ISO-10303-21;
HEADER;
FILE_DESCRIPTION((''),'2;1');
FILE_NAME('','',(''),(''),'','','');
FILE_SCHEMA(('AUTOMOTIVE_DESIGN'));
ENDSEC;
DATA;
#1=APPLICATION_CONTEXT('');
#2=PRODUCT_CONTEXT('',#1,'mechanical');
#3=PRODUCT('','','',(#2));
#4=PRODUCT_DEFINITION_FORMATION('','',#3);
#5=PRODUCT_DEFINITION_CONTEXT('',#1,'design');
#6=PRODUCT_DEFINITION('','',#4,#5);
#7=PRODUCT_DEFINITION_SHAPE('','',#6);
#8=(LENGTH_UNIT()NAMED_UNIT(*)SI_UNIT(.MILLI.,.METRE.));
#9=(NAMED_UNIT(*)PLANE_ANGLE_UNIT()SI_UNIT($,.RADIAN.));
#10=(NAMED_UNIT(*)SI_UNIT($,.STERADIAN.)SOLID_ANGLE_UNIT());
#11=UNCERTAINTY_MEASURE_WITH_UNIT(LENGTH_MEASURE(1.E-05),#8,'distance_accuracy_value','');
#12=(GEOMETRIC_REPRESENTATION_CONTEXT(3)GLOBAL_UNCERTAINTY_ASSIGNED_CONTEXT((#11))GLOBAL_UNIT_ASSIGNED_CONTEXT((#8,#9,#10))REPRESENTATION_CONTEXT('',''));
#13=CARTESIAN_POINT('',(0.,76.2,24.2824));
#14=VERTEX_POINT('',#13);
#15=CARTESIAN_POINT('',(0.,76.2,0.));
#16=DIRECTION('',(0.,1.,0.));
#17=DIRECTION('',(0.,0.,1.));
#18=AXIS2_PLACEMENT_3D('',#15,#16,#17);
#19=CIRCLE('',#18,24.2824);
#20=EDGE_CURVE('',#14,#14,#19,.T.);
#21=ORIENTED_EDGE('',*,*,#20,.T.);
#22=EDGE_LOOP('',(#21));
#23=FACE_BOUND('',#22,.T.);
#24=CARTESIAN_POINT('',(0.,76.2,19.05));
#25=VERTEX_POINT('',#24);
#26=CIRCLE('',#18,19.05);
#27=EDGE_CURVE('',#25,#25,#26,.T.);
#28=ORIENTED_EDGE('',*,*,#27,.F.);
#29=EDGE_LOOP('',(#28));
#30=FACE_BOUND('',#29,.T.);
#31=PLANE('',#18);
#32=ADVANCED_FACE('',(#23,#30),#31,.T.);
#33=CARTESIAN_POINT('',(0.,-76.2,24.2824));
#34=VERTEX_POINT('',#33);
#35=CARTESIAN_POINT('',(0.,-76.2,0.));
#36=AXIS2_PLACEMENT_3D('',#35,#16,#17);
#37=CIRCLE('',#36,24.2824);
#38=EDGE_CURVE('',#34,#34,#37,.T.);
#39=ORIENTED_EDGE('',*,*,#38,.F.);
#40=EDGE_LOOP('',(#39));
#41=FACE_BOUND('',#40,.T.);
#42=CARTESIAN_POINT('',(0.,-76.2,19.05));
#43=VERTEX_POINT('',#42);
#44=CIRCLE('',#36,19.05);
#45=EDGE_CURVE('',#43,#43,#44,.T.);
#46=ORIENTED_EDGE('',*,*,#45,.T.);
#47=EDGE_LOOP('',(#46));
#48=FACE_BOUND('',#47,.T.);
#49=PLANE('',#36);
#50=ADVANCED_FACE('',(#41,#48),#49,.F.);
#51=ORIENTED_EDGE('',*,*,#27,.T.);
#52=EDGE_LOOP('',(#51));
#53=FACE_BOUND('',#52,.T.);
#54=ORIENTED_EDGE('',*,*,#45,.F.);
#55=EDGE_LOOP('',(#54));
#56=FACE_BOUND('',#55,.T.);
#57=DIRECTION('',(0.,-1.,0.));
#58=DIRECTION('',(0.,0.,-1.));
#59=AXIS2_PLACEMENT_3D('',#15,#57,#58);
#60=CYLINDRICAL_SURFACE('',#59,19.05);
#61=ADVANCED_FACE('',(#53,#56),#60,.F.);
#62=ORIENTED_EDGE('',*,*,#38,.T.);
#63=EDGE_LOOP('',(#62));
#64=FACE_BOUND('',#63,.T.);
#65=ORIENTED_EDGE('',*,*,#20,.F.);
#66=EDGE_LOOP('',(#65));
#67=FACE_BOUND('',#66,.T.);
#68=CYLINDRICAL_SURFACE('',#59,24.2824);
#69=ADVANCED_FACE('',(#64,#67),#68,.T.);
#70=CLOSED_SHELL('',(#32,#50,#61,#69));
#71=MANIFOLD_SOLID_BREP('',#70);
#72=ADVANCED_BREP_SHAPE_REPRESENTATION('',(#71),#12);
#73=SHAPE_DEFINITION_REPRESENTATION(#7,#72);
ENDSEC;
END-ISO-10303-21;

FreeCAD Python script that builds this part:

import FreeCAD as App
import Part
import Sketcher

V = App.Vector
Q = App.Units.Quantity

doc = App.newDocument("Part")
body = doc.addObject("PartDesign::Body", "Body")

# Sketch on XZ plane
sketch1 = body.newObject("Sketcher::SketchObject", "Sketch")
sketch1.AttachmentSupport = (doc.getObject("XZ_Plane"), [""])
sketch1.MapMode = "FlatFace"
sketch1.addGeometry([
    Part.Circle(V(0, 0, 0), V(0, 0, 1), 24.2824),
    Part.Circle(V(0, 0, 0), V(0, 0, 1), 19.05),
], False)
sketch1.addConstraint([
    Sketcher.Constraint("Coincident", 0, 3, -1, 1),
    Sketcher.Constraint("Coincident", 1, 3, -1, 1),
    Sketcher.Constraint("Diameter", 1, Q("1.5 in")),
    Sketcher.Constraint("Diameter", 0, Q("1.912 in")),
])
pad1 = body.newObject("PartDesign::Pad", "Pad")
pad1.Profile = sketch1
pad1.Length = Q("6 in")
pad1.Midplane = True

doc.recompute()
